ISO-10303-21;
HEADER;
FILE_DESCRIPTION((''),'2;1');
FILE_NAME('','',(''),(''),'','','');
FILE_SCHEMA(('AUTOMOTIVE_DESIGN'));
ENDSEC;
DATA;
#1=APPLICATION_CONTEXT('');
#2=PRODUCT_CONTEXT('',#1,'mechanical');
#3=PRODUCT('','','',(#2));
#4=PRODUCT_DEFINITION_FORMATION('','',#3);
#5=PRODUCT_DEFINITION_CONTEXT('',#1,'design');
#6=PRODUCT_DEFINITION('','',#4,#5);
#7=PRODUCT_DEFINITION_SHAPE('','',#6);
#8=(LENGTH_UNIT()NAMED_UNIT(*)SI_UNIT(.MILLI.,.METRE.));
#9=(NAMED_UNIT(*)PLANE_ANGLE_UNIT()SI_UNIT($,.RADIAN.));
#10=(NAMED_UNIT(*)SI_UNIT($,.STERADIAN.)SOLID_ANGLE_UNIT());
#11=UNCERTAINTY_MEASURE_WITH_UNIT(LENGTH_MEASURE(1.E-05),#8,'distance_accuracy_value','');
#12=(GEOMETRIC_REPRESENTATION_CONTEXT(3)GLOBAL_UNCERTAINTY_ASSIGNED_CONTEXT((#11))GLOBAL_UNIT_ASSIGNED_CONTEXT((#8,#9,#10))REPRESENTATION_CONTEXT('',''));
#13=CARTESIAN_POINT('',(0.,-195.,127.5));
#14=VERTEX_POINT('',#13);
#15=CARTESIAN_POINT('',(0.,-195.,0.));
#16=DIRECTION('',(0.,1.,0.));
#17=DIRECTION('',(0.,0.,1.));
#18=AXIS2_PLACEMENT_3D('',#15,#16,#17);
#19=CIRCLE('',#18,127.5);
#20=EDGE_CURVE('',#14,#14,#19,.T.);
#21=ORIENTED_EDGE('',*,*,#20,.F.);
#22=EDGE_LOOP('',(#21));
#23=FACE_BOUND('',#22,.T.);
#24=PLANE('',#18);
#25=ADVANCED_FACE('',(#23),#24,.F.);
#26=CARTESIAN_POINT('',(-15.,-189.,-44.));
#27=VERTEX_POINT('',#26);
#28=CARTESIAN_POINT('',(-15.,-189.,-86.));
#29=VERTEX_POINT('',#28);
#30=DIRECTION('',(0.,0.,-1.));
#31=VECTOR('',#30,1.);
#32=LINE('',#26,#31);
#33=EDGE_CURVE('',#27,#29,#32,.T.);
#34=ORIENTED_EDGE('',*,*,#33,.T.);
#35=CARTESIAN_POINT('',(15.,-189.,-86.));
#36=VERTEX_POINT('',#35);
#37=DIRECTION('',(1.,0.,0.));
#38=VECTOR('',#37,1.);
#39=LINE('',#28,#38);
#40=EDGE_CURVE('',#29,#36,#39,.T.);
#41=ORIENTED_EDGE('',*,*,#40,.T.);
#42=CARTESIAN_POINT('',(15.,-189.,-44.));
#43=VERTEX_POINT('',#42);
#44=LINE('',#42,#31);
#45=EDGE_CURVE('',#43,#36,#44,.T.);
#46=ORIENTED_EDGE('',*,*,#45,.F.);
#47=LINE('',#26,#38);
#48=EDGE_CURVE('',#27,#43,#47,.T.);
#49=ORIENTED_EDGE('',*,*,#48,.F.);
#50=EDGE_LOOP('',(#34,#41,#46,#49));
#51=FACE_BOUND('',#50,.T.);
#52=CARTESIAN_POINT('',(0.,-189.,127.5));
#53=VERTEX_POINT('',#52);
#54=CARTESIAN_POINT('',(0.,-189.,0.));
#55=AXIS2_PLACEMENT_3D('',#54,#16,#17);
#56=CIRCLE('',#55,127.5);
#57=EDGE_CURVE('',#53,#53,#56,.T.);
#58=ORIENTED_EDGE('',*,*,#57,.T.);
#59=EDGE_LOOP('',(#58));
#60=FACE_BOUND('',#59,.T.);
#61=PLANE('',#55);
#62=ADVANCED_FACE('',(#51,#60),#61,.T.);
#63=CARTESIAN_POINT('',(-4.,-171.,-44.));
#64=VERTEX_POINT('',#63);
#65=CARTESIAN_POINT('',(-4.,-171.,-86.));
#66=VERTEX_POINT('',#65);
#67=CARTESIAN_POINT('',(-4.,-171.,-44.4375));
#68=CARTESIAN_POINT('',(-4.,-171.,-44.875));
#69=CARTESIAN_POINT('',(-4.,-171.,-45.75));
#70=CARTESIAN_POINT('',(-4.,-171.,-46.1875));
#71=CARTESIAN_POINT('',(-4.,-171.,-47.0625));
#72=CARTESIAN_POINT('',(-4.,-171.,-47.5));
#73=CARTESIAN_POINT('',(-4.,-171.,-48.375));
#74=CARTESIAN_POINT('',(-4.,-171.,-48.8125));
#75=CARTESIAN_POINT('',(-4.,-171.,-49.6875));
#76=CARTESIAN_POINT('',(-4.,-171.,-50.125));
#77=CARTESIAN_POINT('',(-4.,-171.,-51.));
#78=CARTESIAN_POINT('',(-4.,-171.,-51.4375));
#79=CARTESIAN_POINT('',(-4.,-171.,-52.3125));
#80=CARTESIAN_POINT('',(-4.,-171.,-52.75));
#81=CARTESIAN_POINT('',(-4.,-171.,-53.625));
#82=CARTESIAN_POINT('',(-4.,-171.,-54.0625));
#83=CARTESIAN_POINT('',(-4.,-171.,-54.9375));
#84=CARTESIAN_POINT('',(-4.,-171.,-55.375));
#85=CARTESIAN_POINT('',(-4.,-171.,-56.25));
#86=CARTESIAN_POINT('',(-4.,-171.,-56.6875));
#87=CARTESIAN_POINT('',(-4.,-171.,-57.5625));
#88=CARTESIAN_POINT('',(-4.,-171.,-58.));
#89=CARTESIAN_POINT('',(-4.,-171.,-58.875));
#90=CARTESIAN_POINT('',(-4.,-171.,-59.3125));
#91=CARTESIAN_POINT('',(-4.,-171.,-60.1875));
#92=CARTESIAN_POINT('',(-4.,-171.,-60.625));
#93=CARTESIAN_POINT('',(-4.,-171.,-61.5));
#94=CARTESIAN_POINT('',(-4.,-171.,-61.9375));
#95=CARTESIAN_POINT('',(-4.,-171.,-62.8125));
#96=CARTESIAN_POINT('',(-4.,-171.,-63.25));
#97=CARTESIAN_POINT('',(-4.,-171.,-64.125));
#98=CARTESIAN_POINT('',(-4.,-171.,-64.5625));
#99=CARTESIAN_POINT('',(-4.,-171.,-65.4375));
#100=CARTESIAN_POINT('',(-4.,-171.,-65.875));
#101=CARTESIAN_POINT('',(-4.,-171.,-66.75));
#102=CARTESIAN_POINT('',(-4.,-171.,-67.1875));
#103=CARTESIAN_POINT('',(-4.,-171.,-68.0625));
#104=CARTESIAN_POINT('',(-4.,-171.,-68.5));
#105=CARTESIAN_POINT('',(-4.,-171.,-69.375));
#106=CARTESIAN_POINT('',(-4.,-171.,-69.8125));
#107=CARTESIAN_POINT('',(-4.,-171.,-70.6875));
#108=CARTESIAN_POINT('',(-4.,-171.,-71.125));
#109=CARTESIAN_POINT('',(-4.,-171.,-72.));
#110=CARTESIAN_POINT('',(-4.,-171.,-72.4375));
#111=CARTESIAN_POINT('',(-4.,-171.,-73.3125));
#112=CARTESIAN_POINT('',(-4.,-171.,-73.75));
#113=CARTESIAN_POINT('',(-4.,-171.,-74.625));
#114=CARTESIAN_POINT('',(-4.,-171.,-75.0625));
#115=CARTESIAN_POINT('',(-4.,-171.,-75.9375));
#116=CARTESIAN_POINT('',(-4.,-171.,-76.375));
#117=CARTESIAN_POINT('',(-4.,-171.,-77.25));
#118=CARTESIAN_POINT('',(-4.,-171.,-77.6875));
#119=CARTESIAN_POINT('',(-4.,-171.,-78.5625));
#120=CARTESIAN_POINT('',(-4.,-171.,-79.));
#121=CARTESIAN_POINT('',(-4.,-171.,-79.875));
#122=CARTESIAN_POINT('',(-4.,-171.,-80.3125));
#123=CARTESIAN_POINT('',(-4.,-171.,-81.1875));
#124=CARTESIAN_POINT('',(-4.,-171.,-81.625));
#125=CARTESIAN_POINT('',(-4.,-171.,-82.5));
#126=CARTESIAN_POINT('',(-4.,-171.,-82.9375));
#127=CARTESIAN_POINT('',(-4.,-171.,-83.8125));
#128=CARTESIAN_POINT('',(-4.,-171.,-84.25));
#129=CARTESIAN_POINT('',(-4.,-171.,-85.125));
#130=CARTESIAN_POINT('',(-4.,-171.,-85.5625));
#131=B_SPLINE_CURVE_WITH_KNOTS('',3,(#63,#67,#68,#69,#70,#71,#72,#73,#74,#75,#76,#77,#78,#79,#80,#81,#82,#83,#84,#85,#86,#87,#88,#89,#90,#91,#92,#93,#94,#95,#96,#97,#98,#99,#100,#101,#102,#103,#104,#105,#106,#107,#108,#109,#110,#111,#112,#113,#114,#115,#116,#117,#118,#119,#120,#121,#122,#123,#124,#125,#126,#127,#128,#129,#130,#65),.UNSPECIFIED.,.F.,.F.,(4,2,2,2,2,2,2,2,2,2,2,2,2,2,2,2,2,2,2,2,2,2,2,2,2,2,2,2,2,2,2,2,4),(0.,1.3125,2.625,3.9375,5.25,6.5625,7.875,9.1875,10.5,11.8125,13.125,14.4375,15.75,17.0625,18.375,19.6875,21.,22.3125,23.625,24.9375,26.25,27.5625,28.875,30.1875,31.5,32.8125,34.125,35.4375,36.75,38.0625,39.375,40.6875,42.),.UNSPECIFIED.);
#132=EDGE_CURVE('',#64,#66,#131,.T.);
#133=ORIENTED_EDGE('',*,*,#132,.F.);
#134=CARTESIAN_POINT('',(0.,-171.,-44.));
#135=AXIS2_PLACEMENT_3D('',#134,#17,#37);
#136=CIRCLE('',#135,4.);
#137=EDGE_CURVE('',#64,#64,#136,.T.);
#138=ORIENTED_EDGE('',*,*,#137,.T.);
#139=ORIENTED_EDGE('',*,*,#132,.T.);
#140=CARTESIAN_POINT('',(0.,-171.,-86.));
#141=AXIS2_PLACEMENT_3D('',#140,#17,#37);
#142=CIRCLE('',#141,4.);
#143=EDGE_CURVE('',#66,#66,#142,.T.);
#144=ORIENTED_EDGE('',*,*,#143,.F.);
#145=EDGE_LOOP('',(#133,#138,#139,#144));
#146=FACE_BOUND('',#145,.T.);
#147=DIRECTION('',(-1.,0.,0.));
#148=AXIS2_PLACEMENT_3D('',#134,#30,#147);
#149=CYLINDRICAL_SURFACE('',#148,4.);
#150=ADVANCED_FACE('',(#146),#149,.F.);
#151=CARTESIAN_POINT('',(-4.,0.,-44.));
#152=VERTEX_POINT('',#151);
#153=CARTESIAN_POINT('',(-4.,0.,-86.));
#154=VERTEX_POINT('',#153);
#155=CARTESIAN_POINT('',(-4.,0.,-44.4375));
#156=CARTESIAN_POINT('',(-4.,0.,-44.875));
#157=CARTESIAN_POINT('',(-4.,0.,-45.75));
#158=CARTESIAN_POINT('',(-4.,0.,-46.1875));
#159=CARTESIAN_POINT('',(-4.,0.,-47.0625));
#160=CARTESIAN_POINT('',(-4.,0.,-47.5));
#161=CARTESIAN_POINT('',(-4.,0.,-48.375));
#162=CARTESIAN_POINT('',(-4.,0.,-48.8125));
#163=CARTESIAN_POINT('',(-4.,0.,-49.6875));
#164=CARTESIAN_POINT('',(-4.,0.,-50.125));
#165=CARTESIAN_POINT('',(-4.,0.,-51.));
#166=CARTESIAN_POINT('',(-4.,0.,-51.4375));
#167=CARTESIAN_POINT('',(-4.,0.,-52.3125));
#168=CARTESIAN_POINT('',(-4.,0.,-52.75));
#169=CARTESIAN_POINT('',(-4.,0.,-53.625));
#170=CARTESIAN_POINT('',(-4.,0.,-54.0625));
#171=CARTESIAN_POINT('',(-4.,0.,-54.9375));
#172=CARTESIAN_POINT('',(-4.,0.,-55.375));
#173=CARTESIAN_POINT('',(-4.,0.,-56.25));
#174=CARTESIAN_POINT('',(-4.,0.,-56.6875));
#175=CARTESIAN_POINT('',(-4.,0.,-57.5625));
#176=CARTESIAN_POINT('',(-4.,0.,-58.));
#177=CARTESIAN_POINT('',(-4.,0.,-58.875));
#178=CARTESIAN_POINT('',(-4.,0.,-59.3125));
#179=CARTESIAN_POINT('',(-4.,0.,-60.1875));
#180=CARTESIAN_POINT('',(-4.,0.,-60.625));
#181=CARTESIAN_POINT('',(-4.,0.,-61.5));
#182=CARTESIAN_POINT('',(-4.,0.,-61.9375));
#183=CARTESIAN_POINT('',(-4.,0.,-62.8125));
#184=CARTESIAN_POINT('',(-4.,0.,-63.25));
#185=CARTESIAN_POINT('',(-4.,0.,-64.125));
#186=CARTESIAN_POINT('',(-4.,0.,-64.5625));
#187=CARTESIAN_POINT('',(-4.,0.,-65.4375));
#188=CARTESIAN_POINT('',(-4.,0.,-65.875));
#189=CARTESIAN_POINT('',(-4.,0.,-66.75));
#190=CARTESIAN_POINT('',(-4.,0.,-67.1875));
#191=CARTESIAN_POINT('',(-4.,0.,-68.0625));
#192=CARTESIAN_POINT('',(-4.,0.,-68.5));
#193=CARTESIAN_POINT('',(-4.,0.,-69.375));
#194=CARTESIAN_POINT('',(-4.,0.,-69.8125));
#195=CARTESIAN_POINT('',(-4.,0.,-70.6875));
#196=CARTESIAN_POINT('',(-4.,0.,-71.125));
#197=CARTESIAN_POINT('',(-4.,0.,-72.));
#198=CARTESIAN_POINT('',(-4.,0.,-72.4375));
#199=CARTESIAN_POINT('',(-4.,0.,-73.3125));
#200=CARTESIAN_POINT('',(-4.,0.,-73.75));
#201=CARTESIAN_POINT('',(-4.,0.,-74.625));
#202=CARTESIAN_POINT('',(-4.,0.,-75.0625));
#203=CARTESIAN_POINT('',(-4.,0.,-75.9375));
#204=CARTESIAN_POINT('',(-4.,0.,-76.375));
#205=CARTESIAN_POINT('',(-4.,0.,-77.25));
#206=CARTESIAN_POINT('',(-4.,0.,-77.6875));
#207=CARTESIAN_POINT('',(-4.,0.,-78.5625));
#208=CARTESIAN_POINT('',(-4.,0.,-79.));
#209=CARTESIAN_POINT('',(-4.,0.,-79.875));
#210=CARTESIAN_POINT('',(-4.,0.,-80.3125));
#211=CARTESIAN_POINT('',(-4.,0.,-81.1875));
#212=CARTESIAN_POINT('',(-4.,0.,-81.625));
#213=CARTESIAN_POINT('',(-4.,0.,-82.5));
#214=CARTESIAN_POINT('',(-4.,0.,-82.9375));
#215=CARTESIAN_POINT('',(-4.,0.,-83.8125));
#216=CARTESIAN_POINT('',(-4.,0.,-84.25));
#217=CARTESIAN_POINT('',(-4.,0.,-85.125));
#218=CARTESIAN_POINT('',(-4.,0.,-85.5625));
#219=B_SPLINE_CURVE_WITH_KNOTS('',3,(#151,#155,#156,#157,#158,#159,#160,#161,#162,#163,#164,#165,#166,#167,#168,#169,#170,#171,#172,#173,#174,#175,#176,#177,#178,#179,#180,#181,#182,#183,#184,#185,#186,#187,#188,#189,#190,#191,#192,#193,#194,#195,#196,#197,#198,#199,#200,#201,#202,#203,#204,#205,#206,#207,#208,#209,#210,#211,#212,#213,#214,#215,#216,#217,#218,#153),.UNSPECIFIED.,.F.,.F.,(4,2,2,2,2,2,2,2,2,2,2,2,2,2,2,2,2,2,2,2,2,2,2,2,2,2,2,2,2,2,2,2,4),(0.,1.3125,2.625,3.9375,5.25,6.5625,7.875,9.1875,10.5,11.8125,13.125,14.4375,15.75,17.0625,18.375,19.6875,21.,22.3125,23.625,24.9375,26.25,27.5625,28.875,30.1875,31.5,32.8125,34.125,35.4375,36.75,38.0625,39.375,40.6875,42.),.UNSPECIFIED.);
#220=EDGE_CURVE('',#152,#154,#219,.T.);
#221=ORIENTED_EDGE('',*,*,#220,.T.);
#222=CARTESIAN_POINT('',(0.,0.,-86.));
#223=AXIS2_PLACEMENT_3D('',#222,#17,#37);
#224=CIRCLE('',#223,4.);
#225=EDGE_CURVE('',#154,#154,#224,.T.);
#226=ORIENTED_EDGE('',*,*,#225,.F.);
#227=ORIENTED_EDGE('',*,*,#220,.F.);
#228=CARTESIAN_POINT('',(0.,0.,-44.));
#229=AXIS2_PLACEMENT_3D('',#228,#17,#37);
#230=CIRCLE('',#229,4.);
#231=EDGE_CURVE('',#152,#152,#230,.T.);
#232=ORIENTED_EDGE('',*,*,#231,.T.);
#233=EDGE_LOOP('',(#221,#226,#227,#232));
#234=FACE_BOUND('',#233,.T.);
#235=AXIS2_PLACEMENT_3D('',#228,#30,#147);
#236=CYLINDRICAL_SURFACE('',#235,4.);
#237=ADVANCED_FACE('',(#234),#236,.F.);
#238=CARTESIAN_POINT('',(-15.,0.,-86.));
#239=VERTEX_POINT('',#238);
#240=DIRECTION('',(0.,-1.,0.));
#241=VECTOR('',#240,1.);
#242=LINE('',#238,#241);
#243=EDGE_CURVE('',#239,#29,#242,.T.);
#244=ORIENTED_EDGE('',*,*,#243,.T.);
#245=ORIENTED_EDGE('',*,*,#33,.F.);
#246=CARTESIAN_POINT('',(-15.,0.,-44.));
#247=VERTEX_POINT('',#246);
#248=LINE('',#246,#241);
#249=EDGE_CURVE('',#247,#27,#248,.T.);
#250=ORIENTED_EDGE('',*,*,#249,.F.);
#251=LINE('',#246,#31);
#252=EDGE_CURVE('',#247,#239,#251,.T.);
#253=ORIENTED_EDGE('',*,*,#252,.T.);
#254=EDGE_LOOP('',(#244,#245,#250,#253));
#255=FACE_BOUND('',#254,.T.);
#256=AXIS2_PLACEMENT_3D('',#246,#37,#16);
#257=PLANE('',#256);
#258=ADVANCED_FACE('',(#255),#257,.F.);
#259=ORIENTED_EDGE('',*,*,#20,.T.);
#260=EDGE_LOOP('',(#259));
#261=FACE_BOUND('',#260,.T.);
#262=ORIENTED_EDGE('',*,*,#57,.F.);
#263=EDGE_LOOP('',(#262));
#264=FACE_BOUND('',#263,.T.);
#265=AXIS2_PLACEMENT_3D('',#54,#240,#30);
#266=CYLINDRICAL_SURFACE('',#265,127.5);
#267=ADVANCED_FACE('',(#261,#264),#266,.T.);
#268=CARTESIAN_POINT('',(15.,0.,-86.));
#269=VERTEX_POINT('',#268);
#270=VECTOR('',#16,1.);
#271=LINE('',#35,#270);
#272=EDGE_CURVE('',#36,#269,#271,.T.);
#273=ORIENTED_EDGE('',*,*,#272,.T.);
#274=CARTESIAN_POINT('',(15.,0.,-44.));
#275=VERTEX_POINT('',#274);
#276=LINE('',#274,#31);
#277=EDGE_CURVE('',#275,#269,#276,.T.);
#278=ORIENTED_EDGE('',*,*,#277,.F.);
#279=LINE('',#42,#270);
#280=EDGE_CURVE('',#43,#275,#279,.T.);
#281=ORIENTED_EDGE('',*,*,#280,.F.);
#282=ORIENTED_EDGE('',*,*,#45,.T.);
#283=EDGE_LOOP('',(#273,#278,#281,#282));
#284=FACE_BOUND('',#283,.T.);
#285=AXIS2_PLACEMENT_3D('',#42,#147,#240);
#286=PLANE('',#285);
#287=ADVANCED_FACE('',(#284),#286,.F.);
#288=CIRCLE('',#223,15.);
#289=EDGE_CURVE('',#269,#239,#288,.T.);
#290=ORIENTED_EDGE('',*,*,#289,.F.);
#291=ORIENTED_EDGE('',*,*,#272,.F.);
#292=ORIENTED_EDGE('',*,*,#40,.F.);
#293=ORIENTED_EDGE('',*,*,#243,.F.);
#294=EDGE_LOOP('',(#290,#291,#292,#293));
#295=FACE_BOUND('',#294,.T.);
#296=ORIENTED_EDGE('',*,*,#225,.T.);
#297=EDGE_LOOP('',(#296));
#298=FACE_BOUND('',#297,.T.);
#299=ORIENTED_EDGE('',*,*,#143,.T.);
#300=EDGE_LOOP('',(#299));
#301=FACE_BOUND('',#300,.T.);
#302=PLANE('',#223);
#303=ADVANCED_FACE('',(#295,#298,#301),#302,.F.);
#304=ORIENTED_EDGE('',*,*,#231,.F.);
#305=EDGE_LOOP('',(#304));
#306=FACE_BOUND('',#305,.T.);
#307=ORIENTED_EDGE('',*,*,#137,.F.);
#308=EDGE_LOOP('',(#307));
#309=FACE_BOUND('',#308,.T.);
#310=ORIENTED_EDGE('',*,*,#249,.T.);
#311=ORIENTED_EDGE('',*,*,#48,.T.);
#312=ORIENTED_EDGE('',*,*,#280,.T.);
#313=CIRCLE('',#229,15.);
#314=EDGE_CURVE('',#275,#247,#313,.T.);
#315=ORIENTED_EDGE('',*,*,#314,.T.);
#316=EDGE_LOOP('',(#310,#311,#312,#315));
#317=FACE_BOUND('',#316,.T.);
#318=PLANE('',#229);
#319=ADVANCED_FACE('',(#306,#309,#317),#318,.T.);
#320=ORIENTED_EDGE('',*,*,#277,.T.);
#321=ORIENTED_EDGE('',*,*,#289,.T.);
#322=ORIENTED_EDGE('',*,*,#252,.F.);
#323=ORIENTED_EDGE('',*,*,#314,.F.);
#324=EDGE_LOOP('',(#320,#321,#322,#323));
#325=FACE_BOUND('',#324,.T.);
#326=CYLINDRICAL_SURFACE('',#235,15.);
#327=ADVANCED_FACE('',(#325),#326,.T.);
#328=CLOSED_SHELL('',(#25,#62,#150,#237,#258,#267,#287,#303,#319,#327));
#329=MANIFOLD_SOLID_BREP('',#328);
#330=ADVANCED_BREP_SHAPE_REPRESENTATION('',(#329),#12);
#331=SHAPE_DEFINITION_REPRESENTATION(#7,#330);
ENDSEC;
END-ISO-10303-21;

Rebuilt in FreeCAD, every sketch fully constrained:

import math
import FreeCAD as App
import Part
import Sketcher

doc = App.newDocument("Part")
params = doc.addObject("Spreadsheet::Sheet", "Params")
for row, (alias, value) in enumerate([
    ("sketch1_diameter", "255 mm"),
    ("pad1_length", "6 mm"),
    ("sketch2_diameter", "8 mm"),
    ("sketch2_radius", "15 mm"),
    ("sketch2_height", "189 mm"),
    ("pad2_length", "42 mm"),
], start=1):
    params.set(f"A{row}", alias)
    params.set(f"B{row}", "=" + value)
    params.setAlias(f"B{row}", alias)

body = doc.addObject("PartDesign::Body", "Body")

# Sketch on XZ plane
sketch1 = body.newObject("Sketcher::SketchObject", "Sketch")
sketch1.AttachmentSupport = (doc.getObject("XZ_Plane"), [""])
sketch1.MapMode = "FlatFace"
sketch1.AttachmentOffset = App.Placement(App.Vector(0, 0, 195), App.Rotation())
sketch1.addGeometry(Part.Circle(App.Vector(0, 0, 0), App.Vector(0, 0, 1), 127.5), False)
sketch1.addConstraint([
    Sketcher.Constraint("Coincident", 0, 3, -1, 1),
    Sketcher.Constraint("Diameter", 0, 255.0),
])
sketch1.setExpression("Constraints[1]", "Params.sketch1_diameter")
pad1 = body.newObject("PartDesign::Pad", "Pad")
pad1.Profile = sketch1
pad1.setExpression("Length", "Params.pad1_length")
pad1.Reversed = True

# Sketch on XY plane
sketch2 = body.newObject("Sketcher::SketchObject", "Sketch001")
sketch2.AttachmentSupport = (doc.getObject("XY_Plane"), [""])
sketch2.MapMode = "FlatFace"
sketch2.AttachmentOffset = App.Placement(App.Vector(0, 0, -65), App.Rotation())
sketch2.addGeometry([
    Part.LineSegment(App.Vector(-15, 0, 0), App.Vector(-15, -189, 0)),  # 0
    Part.LineSegment(App.Vector(-15, -189, 0), App.Vector(15, -189, 0)),  # 1
    Part.LineSegment(App.Vector(15, -189, 0), App.Vector(15, 0, 0)),  # 2
    Part.ArcOfCircle(Part.Circle(App.Vector(0, 0, 0), App.Vector(0, 0, 1), 15), math.radians(0), math.radians(180)),  # 3
    Part.Circle(App.Vector(0, -171, 0), App.Vector(0, 0, 1), 4),  # 4
    Part.Circle(App.Vector(0, 0, 0), App.Vector(0, 0, 1), 4),  # 5
], False)
sketch2.addConstraint([
    Sketcher.Constraint("Coincident", 0, 2, 1, 1),
    Sketcher.Constraint("Coincident", 1, 2, 2, 1),
    Sketcher.Constraint("Tangent", 2, 2, 3, 1),
    Sketcher.Constraint("Tangent", 3, 2, 0, 1),
    Sketcher.Constraint("Vertical", 0),
    Sketcher.Constraint("Horizontal", 1),
    Sketcher.Constraint("Vertical", 2),
    Sketcher.Constraint("Coincident", 3, 3, -1, 1),
    Sketcher.Constraint("Coincident", 5, 3, -1, 1),
    Sketcher.Constraint("Equal", 4, 5),
    Sketcher.Constraint("PointOnObject", 4, 3, -2),
    Sketcher.Constraint("Diameter", 4, 8.0),
    Sketcher.Constraint("Radius", 3, 15.0),
    Sketcher.Constraint("DistanceY", 0, 2, 0, 1, 189.0),
    Sketcher.Constraint("DistanceY", 4, 3, -1, 1, 171.0),
])
sketch2.setExpression("Constraints[11]", "Params.sketch2_diameter")
sketch2.setExpression("Constraints[12]", "Params.sketch2_radius")
sketch2.setExpression("Constraints[13]", "Params.sketch2_height")
pad2 = body.newObject("PartDesign::Pad", "Pad001")
pad2.Profile = sketch2
pad2.setExpression("Length", "Params.pad2_length")
pad2.Midplane = True

doc.recompute()
